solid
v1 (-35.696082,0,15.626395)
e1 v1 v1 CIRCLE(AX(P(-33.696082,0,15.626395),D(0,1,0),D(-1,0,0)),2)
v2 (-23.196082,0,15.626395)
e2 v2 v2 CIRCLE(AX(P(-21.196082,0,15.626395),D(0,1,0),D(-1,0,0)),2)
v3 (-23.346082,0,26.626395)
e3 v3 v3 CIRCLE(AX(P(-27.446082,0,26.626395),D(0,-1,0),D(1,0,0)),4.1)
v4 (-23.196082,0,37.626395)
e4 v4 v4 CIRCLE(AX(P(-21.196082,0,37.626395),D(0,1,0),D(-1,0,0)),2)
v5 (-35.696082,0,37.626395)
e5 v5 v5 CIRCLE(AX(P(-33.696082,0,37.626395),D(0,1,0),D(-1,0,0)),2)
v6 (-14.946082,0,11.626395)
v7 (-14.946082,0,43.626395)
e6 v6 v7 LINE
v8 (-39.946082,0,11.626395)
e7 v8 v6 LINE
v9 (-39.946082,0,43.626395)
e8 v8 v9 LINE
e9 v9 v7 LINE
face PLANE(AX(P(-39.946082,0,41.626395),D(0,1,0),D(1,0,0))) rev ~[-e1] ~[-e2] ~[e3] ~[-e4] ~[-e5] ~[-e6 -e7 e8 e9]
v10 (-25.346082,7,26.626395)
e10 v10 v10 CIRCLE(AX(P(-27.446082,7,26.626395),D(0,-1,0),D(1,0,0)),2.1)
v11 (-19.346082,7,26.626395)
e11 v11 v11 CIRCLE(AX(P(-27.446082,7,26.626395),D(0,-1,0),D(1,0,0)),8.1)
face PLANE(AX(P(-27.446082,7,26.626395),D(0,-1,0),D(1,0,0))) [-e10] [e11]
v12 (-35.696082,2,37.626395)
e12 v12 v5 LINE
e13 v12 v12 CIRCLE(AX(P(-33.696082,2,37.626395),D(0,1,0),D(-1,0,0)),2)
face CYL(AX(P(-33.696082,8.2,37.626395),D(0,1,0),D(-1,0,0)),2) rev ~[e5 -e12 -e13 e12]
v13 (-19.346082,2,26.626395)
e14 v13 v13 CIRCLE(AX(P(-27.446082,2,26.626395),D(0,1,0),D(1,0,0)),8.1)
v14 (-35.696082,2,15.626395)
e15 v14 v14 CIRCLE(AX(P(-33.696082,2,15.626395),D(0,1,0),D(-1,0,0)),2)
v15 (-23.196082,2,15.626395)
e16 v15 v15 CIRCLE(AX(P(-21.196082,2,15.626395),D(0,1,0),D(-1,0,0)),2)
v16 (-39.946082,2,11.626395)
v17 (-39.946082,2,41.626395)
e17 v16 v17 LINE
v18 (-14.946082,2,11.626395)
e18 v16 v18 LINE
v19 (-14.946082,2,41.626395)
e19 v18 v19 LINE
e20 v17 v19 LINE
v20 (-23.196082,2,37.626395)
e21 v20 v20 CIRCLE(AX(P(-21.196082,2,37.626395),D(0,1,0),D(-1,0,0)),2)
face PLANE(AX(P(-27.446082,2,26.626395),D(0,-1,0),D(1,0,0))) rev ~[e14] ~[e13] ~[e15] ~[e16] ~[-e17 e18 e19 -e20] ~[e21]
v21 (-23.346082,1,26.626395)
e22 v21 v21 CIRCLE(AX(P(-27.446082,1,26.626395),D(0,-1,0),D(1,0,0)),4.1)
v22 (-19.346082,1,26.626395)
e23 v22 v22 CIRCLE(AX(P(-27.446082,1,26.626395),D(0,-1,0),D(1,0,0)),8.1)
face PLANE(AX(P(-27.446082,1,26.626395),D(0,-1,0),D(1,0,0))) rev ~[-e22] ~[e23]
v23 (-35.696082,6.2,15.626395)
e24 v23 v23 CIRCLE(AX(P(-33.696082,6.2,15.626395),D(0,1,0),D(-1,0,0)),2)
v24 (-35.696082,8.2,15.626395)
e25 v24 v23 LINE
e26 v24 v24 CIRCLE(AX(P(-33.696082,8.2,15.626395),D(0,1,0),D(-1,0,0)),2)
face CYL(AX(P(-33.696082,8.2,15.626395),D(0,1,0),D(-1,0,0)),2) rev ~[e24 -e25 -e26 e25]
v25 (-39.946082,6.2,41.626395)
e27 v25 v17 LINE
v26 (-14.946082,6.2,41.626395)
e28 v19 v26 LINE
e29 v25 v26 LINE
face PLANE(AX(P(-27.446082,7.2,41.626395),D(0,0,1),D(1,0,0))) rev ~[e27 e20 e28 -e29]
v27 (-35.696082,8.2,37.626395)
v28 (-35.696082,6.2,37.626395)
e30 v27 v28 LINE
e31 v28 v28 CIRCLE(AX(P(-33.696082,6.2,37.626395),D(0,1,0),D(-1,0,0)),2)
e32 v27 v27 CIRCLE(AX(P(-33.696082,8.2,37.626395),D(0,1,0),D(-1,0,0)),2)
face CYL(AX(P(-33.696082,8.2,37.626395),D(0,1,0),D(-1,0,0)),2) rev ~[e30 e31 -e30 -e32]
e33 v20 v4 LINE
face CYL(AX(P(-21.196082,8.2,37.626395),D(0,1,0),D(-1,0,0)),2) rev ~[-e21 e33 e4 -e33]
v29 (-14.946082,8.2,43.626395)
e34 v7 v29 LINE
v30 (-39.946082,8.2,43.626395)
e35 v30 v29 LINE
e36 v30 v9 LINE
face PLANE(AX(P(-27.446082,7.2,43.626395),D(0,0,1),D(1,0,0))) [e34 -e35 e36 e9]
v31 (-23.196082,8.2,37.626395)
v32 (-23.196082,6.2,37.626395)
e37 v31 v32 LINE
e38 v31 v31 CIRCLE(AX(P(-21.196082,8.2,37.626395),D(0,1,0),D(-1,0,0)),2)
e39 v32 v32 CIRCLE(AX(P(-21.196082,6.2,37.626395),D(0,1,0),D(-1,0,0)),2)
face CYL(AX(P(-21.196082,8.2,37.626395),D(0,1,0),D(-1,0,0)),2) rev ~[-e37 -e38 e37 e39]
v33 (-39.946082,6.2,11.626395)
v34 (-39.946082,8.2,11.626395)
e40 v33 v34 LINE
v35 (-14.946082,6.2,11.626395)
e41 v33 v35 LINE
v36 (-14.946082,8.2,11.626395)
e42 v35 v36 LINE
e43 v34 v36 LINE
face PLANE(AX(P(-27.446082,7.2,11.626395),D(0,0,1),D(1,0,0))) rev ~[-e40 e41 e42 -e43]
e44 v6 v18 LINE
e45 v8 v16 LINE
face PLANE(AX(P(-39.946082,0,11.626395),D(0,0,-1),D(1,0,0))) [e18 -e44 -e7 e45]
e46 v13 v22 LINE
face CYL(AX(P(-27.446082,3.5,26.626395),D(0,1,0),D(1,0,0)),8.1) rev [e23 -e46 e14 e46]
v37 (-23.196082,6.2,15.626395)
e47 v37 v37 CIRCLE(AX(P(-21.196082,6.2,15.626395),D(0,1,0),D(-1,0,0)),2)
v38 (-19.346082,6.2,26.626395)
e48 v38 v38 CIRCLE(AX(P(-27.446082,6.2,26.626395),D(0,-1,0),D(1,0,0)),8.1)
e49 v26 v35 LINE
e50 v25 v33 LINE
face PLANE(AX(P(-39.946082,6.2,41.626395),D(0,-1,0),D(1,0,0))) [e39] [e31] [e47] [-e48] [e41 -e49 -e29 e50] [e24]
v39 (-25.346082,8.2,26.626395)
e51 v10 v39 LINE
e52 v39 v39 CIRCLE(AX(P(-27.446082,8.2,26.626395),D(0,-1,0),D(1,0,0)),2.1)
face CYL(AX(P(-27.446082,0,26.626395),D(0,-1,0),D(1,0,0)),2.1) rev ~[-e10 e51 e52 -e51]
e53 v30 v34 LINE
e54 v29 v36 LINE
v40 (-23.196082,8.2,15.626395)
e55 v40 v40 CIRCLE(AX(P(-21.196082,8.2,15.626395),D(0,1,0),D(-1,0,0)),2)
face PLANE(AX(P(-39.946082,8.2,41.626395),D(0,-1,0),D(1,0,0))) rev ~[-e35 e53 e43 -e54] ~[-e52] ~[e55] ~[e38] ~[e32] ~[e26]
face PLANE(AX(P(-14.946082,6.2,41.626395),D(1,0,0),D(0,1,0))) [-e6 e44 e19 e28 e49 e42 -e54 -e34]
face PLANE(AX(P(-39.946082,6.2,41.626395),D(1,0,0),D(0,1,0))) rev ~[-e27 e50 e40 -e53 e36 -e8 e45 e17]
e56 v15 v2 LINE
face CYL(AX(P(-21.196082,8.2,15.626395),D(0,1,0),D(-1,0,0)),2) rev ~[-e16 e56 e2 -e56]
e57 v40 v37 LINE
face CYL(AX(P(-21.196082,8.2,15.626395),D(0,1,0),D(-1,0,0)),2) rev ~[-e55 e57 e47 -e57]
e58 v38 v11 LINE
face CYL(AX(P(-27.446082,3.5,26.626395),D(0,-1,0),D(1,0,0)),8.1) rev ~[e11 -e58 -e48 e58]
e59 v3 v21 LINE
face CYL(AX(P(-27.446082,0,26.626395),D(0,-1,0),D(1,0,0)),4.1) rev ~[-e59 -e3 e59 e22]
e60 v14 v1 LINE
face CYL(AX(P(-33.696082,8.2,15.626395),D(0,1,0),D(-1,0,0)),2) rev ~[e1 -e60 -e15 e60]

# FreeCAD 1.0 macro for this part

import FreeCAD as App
import Part
import Sketcher

V = App.Vector

doc = App.newDocument("Part")
body = doc.addObject("PartDesign::Body", "Body")

sketch1 = body.newObject("Sketcher::SketchObject", "Sketch")
sketch1.AttachmentSupport = (doc.getObject("XZ_Plane"), [""])
sketch1.MapMode = "FlatFace"
sketch1.addGeometry([
    Part.LineSegment(V(-39.946082, 41.626395, 0), V(-39.946082, 11.626395, 0)),
    Part.LineSegment(V(-39.946082, 11.626395, 0), V(-14.946082, 11.626395, 0)),
    Part.LineSegment(V(-14.946082, 11.626395, 0), V(-14.946082, 41.626395, 0)),
    Part.LineSegment(V(-14.946082, 41.626395, 0), V(-39.946082, 41.626395, 0)),
    Part.Circle(V(-27.446082, 26.626395, 0), V(0, 0, 1), 2.1),
], False)
sketch1.addConstraint([
    Sketcher.Constraint("Coincident", 0, 2, 1, 1),
    Sketcher.Constraint("Coincident", 1, 2, 2, 1),
    Sketcher.Constraint("Coincident", 2, 2, 3, 1),
    Sketcher.Constraint("Coincident", 3, 2, 0, 1),
    Sketcher.Constraint("Vertical", 0),
    Sketcher.Constraint("Horizontal", 1),
    Sketcher.Constraint("Vertical", 2),
    Sketcher.Constraint("Horizontal", 3),
    Sketcher.Constraint("Diameter", 4, 4.2),
    Sketcher.Constraint("DistanceX", 1, 1, 1, 2, 25.0),
    Sketcher.Constraint("DistanceY", 0, 2, 0, 1, 30.0),
    Sketcher.Constraint("DistanceY", 0, 2, 4, 3, 15.0),
    Sketcher.Constraint("DistanceX", 0, 2, 4, 3, 12.5),
    Sketcher.Constraint("DistanceX", 0, 2, -1, 1, 39.946082),
    Sketcher.Constraint("DistanceY", -1, 1, 4, 3, 26.626395),
])
pad1 = body.newObject("PartDesign::Pad", "Pad")
pad1.Profile = sketch1
pad1.Length = 2
pad1.Reversed = True

sketch2 = body.newObject("Sketcher::SketchObject", "Sketch001")
sketch2.AttachmentSupport = (doc.getObject("XY_Plane"), [""])
sketch2.MapMode = "FlatFace"
sketch2.AttachmentOffset = App.Placement(V(0, 0, 41.626395), App.Rotation())
sketch2.addGeometry([
    Part.LineSegment(V(-39.946082, 8.2, 0), V(-39.946082, 0, 0)),
    Part.LineSegment(V(-39.946082, 0, 0), V(-14.946082, 0, 0)),
    Part.LineSegment(V(-14.946082, 0, 0), V(-14.946082, 8.2, 0)),
    Part.LineSegment(V(-14.946082, 8.2, 0), V(-39.946082, 8.2, 0)),
], False)
sketch2.addConstraint([
    Sketcher.Constraint("Coincident", 0, 2, 1, 1),
    Sketcher.Constraint("Coincident", 1, 2, 2, 1),
    Sketcher.Constraint("Coincident", 2, 2, 3, 1),
    Sketcher.Constraint("Coincident", 3, 2, 0, 1),
    Sketcher.Constraint("Vertical", 0),
    Sketcher.Constraint("Horizontal", 1),
    Sketcher.Constraint("Vertical", 2),
    Sketcher.Constraint("Horizontal", 3),
    Sketcher.Constraint("PointOnObject", 0, 2, -1),
    Sketcher.Constraint("DistanceX", 1, 1, 1, 2, 25.0),
    Sketcher.Constraint("DistanceY", 0, 2, 0, 1, 8.2),
    Sketcher.Constraint("DistanceX", 0, 2, -1, 1, 39.946082),
])
pad2 = body.newObject("PartDesign::Pad", "Pad001")
pad2.Profile = sketch2
pad2.Length = 2

sketch3 = body.newObject("Sketcher::SketchObject", "Sketch002")
sketch3.AttachmentSupport = (doc.getObject("XY_Plane"), [""])
sketch3.MapMode = "FlatFace"
sketch3.AttachmentOffset = App.Placement(V(0, 0, 41.626395), App.Rotation())
sketch3.addGeometry([
    Part.LineSegment(V(-39.946082, 8.2, 0), V(-39.946082, 6.2, 0)),
    Part.LineSegment(V(-39.946082, 6.2, 0), V(-14.946082, 6.2, 0)),
    Part.LineSegment(V(-14.946082, 6.2, 0), V(-14.946082, 8.2, 0)),
    Part.LineSegment(V(-14.946082, 8.2, 0), V(-39.946082, 8.2, 0)),
], False)
sketch3.addConstraint([
    Sketcher.Constraint("Coincident", 0, 2, 1, 1),
    Sketcher.Constraint("Coincident", 1, 2, 2, 1),
    Sketcher.Constraint("Coincident", 2, 2, 3, 1),
    Sketcher.Constraint("Coincident", 3, 2, 0, 1),
    Sketcher.Constraint("Vertical", 0),
    Sketcher.Constraint("Horizontal", 1),
    Sketcher.Constraint("Vertical", 2),
    Sketcher.Constraint("Horizontal", 3),
    Sketcher.Constraint("DistanceX", 1, 1, 1, 2, 25.0),
    Sketcher.Constraint("DistanceY", 0, 2, 0, 1, 2.0),
    Sketcher.Constraint("DistanceY", -1, 1, 0, 2, 6.2),
    Sketcher.Constraint("DistanceX", 0, 2, -1, 1, 39.946082),
])
pad3 = body.newObject("PartDesign::Pad", "Pad002")
pad3.Profile = sketch3
pad3.Length = 30
pad3.Reversed = True

sketch4 = body.newObject("Sketcher::SketchObject", "Sketch003")
sketch4.AttachmentSupport = (doc.getObject("XZ_Plane"), [""])
sketch4.MapMode = "FlatFace"
sketch4.addGeometry(Part.Circle(V(-27.446082, 26.626395, 0), V(0, 0, 1), 2.1), False)
sketch4.addConstraint([
    Sketcher.Constraint("Diameter", 0, 4.2),
    Sketcher.Constraint("DistanceX", 0, 3, -1, 1, 27.446082),
    Sketcher.Constraint("DistanceY", -1, 1, 0, 3, 26.626395),
])
pocket1 = body.newObject("PartDesign::Pocket", "Pocket")
pocket1.Profile = sketch4
pocket1.Type = "ThroughAll"

sketch5 = body.newObject("Sketcher::SketchObject", "Sketch004")
sketch5.AttachmentSupport = (doc.getObject("XZ_Plane"), [""])
sketch5.MapMode = "FlatFace"
sketch5.AttachmentOffset = App.Placement(V(0, 0, -3.5), App.Rotation())
sketch5.addGeometry([
    Part.Circle(V(-27.446082, 26.626395, 0), V(0, 0, 1), 8.1),
    Part.Circle(V(-27.446082, 26.626395, 0), V(0, 0, 1), 2.1),
], False)
sketch5.addConstraint([
    Sketcher.Constraint("Coincident", 1, 3, 0, 3),
    Sketcher.Constraint("Diameter", 0, 16.2),
    Sketcher.Constraint("Diameter", 1, 4.2),
    Sketcher.Constraint("DistanceX", 0, 3, -1, 1, 27.446082),
    Sketcher.Constraint("DistanceY", -1, 1, 0, 3, 26.626395),
])
pocket2 = body.newObject("PartDesign::Pocket", "Pocket001")
pocket2.Profile = sketch5
pocket2.Type = "TwoLengths"
pocket2.Length = 2.5
pocket2.Length2 = 3.5
pocket2.Reversed = True

sketch6 = body.newObject("Sketcher::SketchObject", "Sketch005")
sketch6.AttachmentSupport = (doc.getObject("XZ_Plane"), [""])
sketch6.MapMode = "FlatFace"
sketch6.addGeometry(Part.Circle(V(-27.446082, 26.626395, 0), V(0, 0, 1), 4.1), False)
sketch6.addConstraint([
    Sketcher.Constraint("Diameter", 0, 8.2),
    Sketcher.Constraint("DistanceX", 0, 3, -1, 1, 27.446082),
    Sketcher.Constraint("DistanceY", -1, 1, 0, 3, 26.626395),
])
pocket3 = body.newObject("PartDesign::Pocket", "Pocket002")
pocket3.Profile = sketch6
pocket3.Length = 1

sketch7 = body.newObject("Sketcher::SketchObject", "Sketch006")
sketch7.AttachmentSupport = (doc.getObject("XZ_Plane"), [""])
sketch7.MapMode = "FlatFace"
sketch7.AttachmentOffset = App.Placement(V(0, 0, -8.2), App.Rotation())
sketch7.addGeometry([
    Part.Circle(V(-21.196082, 37.626395, 0), V(0, 0, 1), 2),
    Part.Circle(V(-33.696082, 37.626395, 0), V(0, 0, 1), 2),
    Part.Circle(V(-21.196082, 15.626395, 0), V(0, 0, 1), 2),
    Part.Circle(V(-33.696082, 15.626395, 0), V(0, 0, 1), 2),
], False)
sketch7.addConstraint([
    Sketcher.Constraint("Equal", 0, 1),
    Sketcher.Constraint("Equal", 1, 2),
    Sketcher.Constraint("Equal", 2, 3),
    Sketcher.Constraint("Horizontal", 0, 3, 1, 3),
    Sketcher.Constraint("Horizontal", 2, 3, 3, 3),
    Sketcher.Constraint("Vertical", 0, 3, 2, 3),
    Sketcher.Constraint("Vertical", 1, 3, 3, 3),
    Sketcher.Constraint("Diameter", 0, 4.0),
    Sketcher.Constraint("DistanceY", 2, 3, 0, 3, 22.0),
    Sketcher.Constraint("DistanceX", 1, 3, 0, 3, 12.5),
    Sketcher.Constraint("DistanceX", 1, 3, -1, 1, 33.696082),
    Sketcher.Constraint("DistanceY", -1, 1, 0, 3, 37.626395),
])
pocket4 = body.newObject("PartDesign::Pocket", "Pocket003")
pocket4.Profile = sketch7
pocket4.Type = "ThroughAll"
pocket4.Reversed = True

doc.recompute()
